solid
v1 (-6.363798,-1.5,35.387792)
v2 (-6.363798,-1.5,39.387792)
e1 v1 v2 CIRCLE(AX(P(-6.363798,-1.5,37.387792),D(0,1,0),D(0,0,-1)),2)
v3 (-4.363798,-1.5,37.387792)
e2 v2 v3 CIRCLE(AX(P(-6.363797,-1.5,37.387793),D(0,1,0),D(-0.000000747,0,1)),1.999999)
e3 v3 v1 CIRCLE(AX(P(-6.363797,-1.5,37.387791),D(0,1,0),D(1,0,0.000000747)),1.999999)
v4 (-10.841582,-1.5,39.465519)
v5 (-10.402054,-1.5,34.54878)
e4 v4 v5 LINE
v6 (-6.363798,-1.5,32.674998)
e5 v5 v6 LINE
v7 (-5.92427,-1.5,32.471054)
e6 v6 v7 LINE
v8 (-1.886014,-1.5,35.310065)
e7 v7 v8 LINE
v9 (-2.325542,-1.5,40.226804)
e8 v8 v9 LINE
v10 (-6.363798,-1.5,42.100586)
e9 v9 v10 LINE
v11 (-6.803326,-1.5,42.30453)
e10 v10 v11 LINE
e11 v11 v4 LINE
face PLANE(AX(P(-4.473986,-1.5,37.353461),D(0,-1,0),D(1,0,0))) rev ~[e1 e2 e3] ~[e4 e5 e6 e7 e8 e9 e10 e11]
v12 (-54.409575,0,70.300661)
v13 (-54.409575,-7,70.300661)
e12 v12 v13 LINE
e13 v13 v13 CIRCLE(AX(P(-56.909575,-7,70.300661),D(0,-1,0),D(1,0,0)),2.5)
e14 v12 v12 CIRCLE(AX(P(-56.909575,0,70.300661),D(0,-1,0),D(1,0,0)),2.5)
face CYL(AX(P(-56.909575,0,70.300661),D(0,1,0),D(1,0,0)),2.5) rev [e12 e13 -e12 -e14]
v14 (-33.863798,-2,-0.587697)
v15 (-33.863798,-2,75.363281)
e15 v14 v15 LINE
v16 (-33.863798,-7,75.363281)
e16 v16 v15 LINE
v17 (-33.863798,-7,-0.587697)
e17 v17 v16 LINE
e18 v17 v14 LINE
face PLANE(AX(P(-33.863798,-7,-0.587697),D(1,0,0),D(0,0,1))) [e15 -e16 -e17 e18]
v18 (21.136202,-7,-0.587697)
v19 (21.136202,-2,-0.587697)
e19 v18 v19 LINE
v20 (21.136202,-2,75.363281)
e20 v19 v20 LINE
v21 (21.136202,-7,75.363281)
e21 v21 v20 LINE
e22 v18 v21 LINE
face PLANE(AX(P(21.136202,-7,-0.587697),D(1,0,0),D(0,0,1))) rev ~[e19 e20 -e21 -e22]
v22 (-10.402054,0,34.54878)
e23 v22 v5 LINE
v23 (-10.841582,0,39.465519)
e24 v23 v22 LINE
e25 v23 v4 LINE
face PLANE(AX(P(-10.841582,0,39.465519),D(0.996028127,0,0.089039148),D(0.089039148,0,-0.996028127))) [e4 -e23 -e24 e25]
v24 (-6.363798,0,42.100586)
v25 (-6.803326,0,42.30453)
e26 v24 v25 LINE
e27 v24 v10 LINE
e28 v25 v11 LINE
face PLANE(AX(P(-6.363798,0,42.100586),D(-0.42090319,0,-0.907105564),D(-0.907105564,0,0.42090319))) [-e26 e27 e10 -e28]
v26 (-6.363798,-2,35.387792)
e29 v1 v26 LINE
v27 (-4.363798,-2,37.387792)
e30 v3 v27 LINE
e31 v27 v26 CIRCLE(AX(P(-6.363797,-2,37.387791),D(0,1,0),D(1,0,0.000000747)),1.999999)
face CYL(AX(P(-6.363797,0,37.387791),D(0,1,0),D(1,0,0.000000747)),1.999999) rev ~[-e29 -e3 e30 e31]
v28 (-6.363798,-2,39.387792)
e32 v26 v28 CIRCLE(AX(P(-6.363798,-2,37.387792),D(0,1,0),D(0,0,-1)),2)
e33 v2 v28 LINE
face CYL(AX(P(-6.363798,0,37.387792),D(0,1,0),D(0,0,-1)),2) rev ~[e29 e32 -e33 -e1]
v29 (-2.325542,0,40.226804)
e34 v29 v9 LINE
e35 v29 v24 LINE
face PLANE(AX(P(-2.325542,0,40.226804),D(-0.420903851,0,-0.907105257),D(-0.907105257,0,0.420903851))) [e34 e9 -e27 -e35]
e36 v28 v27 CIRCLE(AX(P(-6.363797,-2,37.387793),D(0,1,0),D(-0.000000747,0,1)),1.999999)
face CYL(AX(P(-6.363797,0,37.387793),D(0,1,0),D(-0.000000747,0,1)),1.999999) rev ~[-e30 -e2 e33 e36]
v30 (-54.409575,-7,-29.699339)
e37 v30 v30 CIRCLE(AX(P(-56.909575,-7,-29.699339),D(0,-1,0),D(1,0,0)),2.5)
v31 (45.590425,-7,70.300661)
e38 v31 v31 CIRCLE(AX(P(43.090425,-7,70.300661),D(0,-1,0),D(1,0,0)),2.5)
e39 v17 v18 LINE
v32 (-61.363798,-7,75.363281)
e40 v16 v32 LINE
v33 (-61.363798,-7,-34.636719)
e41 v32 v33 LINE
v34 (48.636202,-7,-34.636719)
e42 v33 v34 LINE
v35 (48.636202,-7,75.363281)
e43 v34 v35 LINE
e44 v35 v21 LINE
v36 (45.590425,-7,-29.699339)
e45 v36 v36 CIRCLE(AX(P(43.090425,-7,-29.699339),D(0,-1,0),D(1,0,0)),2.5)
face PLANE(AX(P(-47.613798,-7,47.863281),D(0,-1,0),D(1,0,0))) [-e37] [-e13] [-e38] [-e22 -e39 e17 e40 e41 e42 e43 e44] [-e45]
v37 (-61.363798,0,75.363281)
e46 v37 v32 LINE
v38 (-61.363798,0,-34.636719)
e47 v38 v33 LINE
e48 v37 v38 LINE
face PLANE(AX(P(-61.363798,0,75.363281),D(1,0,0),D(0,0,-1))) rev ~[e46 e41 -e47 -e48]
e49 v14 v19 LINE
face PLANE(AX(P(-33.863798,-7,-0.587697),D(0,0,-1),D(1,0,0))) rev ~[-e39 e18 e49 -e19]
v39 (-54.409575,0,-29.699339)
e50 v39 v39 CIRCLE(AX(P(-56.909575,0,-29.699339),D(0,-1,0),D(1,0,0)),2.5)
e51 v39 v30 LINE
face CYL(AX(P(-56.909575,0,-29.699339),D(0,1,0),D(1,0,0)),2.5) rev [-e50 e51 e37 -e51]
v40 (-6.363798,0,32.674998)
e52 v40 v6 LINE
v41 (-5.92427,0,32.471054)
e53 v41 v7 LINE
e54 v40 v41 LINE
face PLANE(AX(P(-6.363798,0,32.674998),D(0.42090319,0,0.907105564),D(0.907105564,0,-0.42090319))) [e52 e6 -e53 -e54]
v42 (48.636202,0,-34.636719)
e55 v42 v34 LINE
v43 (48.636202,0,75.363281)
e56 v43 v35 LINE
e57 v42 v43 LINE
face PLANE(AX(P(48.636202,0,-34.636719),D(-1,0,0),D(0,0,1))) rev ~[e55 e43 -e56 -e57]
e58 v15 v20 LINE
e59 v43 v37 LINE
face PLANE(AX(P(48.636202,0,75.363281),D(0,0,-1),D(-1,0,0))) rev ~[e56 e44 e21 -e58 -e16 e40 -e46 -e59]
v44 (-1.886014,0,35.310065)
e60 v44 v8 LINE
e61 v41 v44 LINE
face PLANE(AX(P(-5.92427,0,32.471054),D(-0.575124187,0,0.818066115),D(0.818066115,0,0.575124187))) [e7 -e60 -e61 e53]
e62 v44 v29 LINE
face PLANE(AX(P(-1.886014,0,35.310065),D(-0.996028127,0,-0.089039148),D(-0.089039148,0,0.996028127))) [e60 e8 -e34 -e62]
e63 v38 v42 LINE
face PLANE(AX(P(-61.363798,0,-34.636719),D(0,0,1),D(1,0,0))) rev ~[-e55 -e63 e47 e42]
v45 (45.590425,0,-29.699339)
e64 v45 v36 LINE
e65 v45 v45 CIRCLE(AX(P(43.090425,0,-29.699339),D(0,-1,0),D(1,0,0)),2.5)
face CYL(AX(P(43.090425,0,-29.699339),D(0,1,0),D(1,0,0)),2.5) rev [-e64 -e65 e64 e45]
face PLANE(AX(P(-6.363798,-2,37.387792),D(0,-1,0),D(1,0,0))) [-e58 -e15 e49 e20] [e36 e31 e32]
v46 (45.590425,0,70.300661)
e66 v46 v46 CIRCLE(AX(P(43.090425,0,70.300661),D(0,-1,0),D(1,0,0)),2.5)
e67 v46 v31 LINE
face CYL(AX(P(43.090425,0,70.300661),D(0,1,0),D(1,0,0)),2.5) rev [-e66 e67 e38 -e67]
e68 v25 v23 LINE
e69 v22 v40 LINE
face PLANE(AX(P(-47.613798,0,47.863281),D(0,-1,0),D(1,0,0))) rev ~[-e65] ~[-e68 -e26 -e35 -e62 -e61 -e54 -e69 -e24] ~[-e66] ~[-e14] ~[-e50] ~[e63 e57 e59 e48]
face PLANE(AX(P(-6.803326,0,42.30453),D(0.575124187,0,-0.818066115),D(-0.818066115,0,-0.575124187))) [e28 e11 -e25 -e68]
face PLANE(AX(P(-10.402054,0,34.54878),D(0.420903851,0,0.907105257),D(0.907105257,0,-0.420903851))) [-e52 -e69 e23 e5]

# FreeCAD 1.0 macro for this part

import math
import FreeCAD as App
import Part
import Sketcher


def add_polygon(sketch, points):
    """Adds a closed chain of lines whose ends are joined by coincident constraints."""
    first, n = sketch.GeometryCount, len(points)
    for a, b in zip(points, points[1:] + points[:1]):
        sketch.addGeometry(Part.LineSegment(App.Vector(*a, 0), App.Vector(*b, 0)), False)
    for i in range(n):
        sketch.addConstraint(Sketcher.Constraint("Coincident", first + i, 2, first + (i + 1) % n, 1))

doc = App.newDocument("Part")
body = doc.addObject("PartDesign::Body", "Body")

# Sketch on XZ plane
sketch1 = body.newObject("Sketcher::SketchObject", "Sketch")
sketch1.AttachmentSupport = (doc.getObject("XZ_Plane"), [""])
sketch1.MapMode = "FlatFace"
add_polygon(sketch1, [(-61.4, 75.4), (-61.4, -34.6), (48.6, -34.6), (48.6, 75.4)])  # lines 0-3
sketch1.addGeometry(Part.ArcOfCircle(Part.Circle(App.Vector(-6.4, 37.4, 0), App.Vector(0, 0, 1), 2), math.radians(0), math.radians(90)), False)  # 4
sketch1.addGeometry(Part.ArcOfCircle(Part.Circle(App.Vector(-6.4, 37.4, 0), App.Vector(0, 0, 1), 2), math.radians(-90), math.radians(0)), False)  # 5
sketch1.addGeometry(Part.ArcOfCircle(Part.Circle(App.Vector(-6.4, 37.4, 0), App.Vector(0, 0, 1), 2), math.radians(90), math.radians(270)), False)  # 6
sketch1.addGeometry(Part.Circle(App.Vector(-56.9, -29.7, 0), App.Vector(0, 0, 1), 2.5), False)  # 7
sketch1.addGeometry(Part.Circle(App.Vector(43.1, -29.7, 0), App.Vector(0, 0, 1), 2.5), False)  # 8
sketch1.addGeometry(Part.Circle(App.Vector(-56.9, 70.3, 0), App.Vector(0, 0, 1), 2.5), False)  # 9
sketch1.addGeometry(Part.Circle(App.Vector(43.1, 70.3, 0), App.Vector(0, 0, 1), 2.5), False)  # 10
sketch1.addConstraint(Sketcher.Constraint("Tangent", 4, 1, 5, 2))
sketch1.addConstraint(Sketcher.Constraint("Tangent", 5, 1, 6, 2))
sketch1.addConstraint(Sketcher.Constraint("Tangent", 6, 1, 4, 2))
sketch1.addConstraint(Sketcher.Constraint("Vertical", 0))
sketch1.addConstraint(Sketcher.Constraint("Horizontal", 1))
sketch1.addConstraint(Sketcher.Constraint("Vertical", 2))
sketch1.addConstraint(Sketcher.Constraint("Horizontal", 3))
sketch1.addConstraint(Sketcher.Constraint("Equal", 7, 8))
sketch1.addConstraint(Sketcher.Constraint("Equal", 8, 9))
sketch1.addConstraint(Sketcher.Constraint("Equal", 9, 10))
sketch1.addConstraint(Sketcher.Constraint("Horizontal", 7, 3, 8, 3))
sketch1.addConstraint(Sketcher.Constraint("Horizontal", 9, 3, 10, 3))
sketch1.addConstraint(Sketcher.Constraint("Horizontal", 6, 3, 4, 1))
sketch1.addConstraint(Sketcher.Constraint("Vertical", 7, 3, 9, 3))
sketch1.addConstraint(Sketcher.Constraint("Vertical", 8, 3, 10, 3))
sketch1.addConstraint(Sketcher.Constraint("Vertical", 6, 3, 5, 1))
sketch1.addConstraint(Sketcher.Constraint("Vertical", 5, 1, 6, 1))
sketch1.addConstraint(Sketcher.Constraint("Equal", 3, 0))
sketch1.addConstraint(Sketcher.Constraint("Diameter", 7, 5.0))
sketch1.addConstraint(Sketcher.Constraint("Radius", 4, 1.999999))
sketch1.addConstraint(Sketcher.Constraint("DistanceX", 1, 1, 1, 2, 110.0))
sketch1.addConstraint(Sketcher.Constraint("DistanceX", 7, 3, 8, 3, 100.0))
sketch1.addConstraint(Sketcher.Constraint("DistanceY", 7, 3, 9, 3, 100.0))
sketch1.addConstraint(Sketcher.Constraint("DistanceX", 0, 2, 5, 3, 55.000001))
sketch1.addConstraint(Sketcher.Constraint("DistanceX", 0, 2, -1, 1, 61.363798))
sketch1.addConstraint(Sketcher.Constraint("DistanceY", -1, 1, 5, 3, 37.387791))
sketch1.addConstraint(Sketcher.Constraint("DistanceY", 7, 3, -1, 1, 29.699339))
sketch1.addConstraint(Sketcher.Constraint("DistanceY", 0, 2, -1, 1, 34.636719))
sketch1.addConstraint(Sketcher.Constraint("DistanceX", 7, 3, 5, 3, 50.545778))
pad1 = body.newObject("PartDesign::Pad", "Pad")
pad1.Profile = sketch1
pad1.Length = 7

# Sketch on XZ plane
sketch2 = body.newObject("Sketcher::SketchObject", "Sketch001")
sketch2.AttachmentSupport = (doc.getObject("XZ_Plane"), [""])
sketch2.MapMode = "FlatFace"
sketch2.AttachmentOffset = App.Placement(App.Vector(0, 0, 7), App.Rotation())
add_polygon(sketch2, [(-34, 75), (-34, -1), (21, -1), (21, 75)])  # lines 0-3
sketch2.addConstraint(Sketcher.Constraint("Vertical", 0))
sketch2.addConstraint(Sketcher.Constraint("Horizontal", 1))
sketch2.addConstraint(Sketcher.Constraint("Vertical", 2))
sketch2.addConstraint(Sketcher.Constraint("Horizontal", 3))
sketch2.addConstraint(Sketcher.Constraint("DistanceX", 1, 1, 1, 2, 55.0))
sketch2.addConstraint(Sketcher.Constraint("DistanceY", 0, 2, 0, 1, 75.950978))
sketch2.addConstraint(Sketcher.Constraint("DistanceX", 0, 2, -1, 1, 33.863798))
sketch2.addConstraint(Sketcher.Constraint("DistanceY", -1, 1, 2, 2, 75.363281))
pocket1 = body.newObject("PartDesign::Pocket", "Pocket")
pocket1.Profile = sketch2
pocket1.Length = 5

# Sketch on XZ plane
sketch3 = body.newObject("Sketcher::SketchObject", "Sketch002")
sketch3.AttachmentSupport = (doc.getObject("XZ_Plane"), [""])
sketch3.MapMode = "FlatFace"
add_polygon(sketch3, [(-2.325542, 40.226804), (-6.363798, 42.100586), (-6.803326, 42.30453), (-10.841582, 39.465519), (-10.402054, 34.54878), (-6.363798, 32.674998), (-5.92427, 32.471054), (-1.886014, 35.310065)])  # lines 0-7
sketch3.addGeometry(Part.ArcOfCircle(Part.Circle(App.Vector(-6.363797, 37.387793, 0), App.Vector(0, 0, 1), 1.999999), math.radians(-0.000043), math.radians(90.000043)), False)  # 8
sketch3.addGeometry(Part.ArcOfCircle(Part.Circle(App.Vector(-6.363797, 37.387791, 0), App.Vector(0, 0, 1), 1.999999), math.radians(-90.000043), math.radians(0.000043)), False)  # 9
sketch3.addGeometry(Part.ArcOfCircle(Part.Circle(App.Vector(-6.363798, 37.387792, 0), App.Vector(0, 0, 1), 2), math.radians(90), math.radians(270)), False)  # 10
sketch3.addConstraint(Sketcher.Constraint("Coincident", 8, 1, 9, 2))
sketch3.addConstraint(Sketcher.Constraint("Coincident", 9, 1, 10, 2))
sketch3.addConstraint(Sketcher.Constraint("Coincident", 10, 1, 8, 2))
sketch3.addConstraint(Sketcher.Constraint("Coincident", 9, 3, 8, 3))
sketch3.addConstraint(Sketcher.Constraint("Radius", 8, 1.999999))
sketch3.addConstraint(Sketcher.Constraint("DistanceX", 10, 3, 8, 1, 2.0))
sketch3.addConstraint(Sketcher.Constraint("DistanceX", 9, 1, 8, 1, 2.0))
sketch3.addConstraint(Sketcher.Constraint("DistanceY", 9, 1, 8, 1, 2.0))
sketch3.addConstraint(Sketcher.Constraint("DistanceX", 10, 1, 8, 1, 2.0))
sketch3.addConstraint(Sketcher.Constraint("DistanceY", -1, 1, 4, 2, 32.674998))
sketch3.addConstraint(Sketcher.Constraint("DistanceX", 8, 1, -1, 1, 4.363798))
sketch3.addConstraint(Sketcher.Constraint("Distance", 1, 0.484539))
sketch3.addConstraint(Sketcher.Constraint("Distance", 5, 0.484539))
sketch3.addConstraint(Sketcher.Constraint("DistanceY", -1, 1, 9, 3, 37.387791))
sketch3.addConstraint(Sketcher.Constraint("DistanceY", -1, 1, 1, 2, 42.30453))
sketch3.addConstraint(Sketcher.Constraint("DistanceY", -1, 1, 2, 2, 39.465519))
sketch3.addConstraint(Sketcher.Constraint("DistanceY", -1, 1, 3, 2, 34.54878))
sketch3.addConstraint(Sketcher.Constraint("DistanceX", 5, 2, -1, 1, 5.92427))
sketch3.addConstraint(Sketcher.Constraint("DistanceX", 7, 2, -1, 1, 2.325542))
sketch3.addConstraint(Sketcher.Constraint("DistanceX", 1, 2, 0, 2, 0.439528))
sketch3.addConstraint(Sketcher.Constraint("DistanceX", 1, 2, 8, 3, 0.439529))
sketch3.addConstraint(Sketcher.Constraint("DistanceX", 2, 2, 3, 2, 0.439528))
sketch3.addConstraint(Sketcher.Constraint("DistanceX", 4, 2, 5, 2, 0.439528))
sketch3.addConstraint(Sketcher.Constraint("DistanceY", 6, 2, 8, 3, 2.077728))
sketch3.addConstraint(Sketcher.Constraint("DistanceY", 7, 2, 0, 2, 1.873782))
sketch3.addConstraint(Sketcher.Constraint("Distance", 2, 4.936344))
sketch3.addConstraint(Sketcher.Constraint("Distance", 6, 4.936344))
pocket2 = body.newObject("PartDesign::Pocket", "Pocket001")
pocket2.Profile = sketch3
pocket2.Length = 1.5
pocket2.Reversed = True

doc.recompute()
